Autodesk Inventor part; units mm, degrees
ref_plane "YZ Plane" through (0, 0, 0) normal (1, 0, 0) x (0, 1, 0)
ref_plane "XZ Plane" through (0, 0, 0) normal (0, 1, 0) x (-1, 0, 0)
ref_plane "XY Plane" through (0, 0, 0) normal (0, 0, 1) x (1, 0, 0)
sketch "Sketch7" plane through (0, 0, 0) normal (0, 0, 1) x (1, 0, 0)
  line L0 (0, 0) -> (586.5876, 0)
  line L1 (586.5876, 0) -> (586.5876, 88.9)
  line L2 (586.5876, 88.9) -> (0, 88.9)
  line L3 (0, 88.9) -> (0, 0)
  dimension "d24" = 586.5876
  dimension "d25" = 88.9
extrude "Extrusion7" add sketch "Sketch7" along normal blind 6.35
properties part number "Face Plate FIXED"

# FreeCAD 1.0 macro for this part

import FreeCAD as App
import Part
import Sketcher
Q = App.Units.Quantity


def add_polygon(sketch, points):
    """Adds a closed chain of lines whose ends are joined by coincident constraints."""
    first, n = sketch.GeometryCount, len(points)
    for a, b in zip(points, points[1:] + points[:1]):
        sketch.addGeometry(Part.LineSegment(App.Vector(*a, 0), App.Vector(*b, 0)), False)
    for i in range(n):
        sketch.addConstraint(Sketcher.Constraint("Coincident", first + i, 2, first + (i + 1) % n, 1))

doc = App.newDocument("Part")
body = doc.addObject("PartDesign::Body", "Body")

sketch1 = body.newObject("Sketcher::SketchObject", "Sketch")
sketch1.AttachmentSupport = (doc.getObject("XY_Plane"), [""])
sketch1.MapMode = "FlatFace"
add_polygon(sketch1, [(0, 89), (0, 0), (587, 0), (587, 89)])
sketch1.addConstraint(Sketcher.Constraint("Vertical", 0))
sketch1.addConstraint(Sketcher.Constraint("Horizontal", 1))
sketch1.addConstraint(Sketcher.Constraint("Vertical", 2))
sketch1.addConstraint(Sketcher.Constraint("Horizontal", 3))
sketch1.addConstraint(Sketcher.Constraint("Coincident", 0, 2, -1, 1))
sketch1.addConstraint(Sketcher.Constraint("DistanceY", 0, 2, 0, 1, Q("3.5 in")))
sketch1.addConstraint(Sketcher.Constraint("DistanceX", 1, 1, 1, 2, Q("23.094 in")))
pad1 = body.newObject("PartDesign::Pad", "Pad")
pad1.Profile = sketch1
pad1.Length = Q("0.25 in")

doc.recompute()
